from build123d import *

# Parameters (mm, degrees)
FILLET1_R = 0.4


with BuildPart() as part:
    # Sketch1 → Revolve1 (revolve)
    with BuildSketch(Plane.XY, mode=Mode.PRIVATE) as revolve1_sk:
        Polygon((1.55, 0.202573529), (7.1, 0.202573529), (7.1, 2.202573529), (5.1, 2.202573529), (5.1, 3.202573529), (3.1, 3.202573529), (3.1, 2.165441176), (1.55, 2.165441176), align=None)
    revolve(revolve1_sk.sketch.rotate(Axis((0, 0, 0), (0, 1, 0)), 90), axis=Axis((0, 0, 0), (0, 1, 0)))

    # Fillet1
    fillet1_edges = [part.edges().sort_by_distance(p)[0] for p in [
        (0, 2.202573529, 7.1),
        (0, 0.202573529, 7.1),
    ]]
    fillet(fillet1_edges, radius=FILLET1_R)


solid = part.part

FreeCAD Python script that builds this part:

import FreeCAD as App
import Part
import Sketcher

V = App.Vector
Q = App.Units.Quantity


def edges_at(feature, points):
    """Names of the edges that pass closest to the given points."""
    edges = feature.Shape.Edges
    near = lambda p: min(range(len(edges)), key=lambda i: edges[i].distToShape(Part.Vertex(*p))[0])
    return sorted({f"Edge{near(p) + 1}" for p in points})


def add_polygon(sketch, points):
    """Adds a closed chain of lines whose ends are joined by coincident constraints."""
    first, n = sketch.GeometryCount, len(points)
    for a, b in zip(points, points[1:] + points[:1]):
        sketch.addGeometry(Part.LineSegment(App.Vector(*a, 0), App.Vector(*b, 0)), False)
    for i in range(n):
        sketch.addConstraint(Sketcher.Constraint("Coincident", first + i, 2, first + (i + 1) % n, 1))

doc = App.newDocument("Part")
body = doc.addObject("PartDesign::Body", "Body")

# Sketch on XY plane
sketch1 = body.newObject("Sketcher::SketchObject", "Sketch")
sketch1.AttachmentSupport = (doc.getObject("XY_Plane"), [""])
sketch1.MapMode = "FlatFace"
add_polygon(sketch1, [(1.6, 0.2), (7.1, 0.2), (7.1, 2.2), (5.1, 2.2), (5.1, 3.2), (3.1, 3.2), (3.1, 2.2), (1.6, 2.2)])  # lines 0-7
sketch1.addConstraint(Sketcher.Constraint("Horizontal", 0))
sketch1.addConstraint(Sketcher.Constraint("Vertical", 1))
sketch1.addConstraint(Sketcher.Constraint("Horizontal", 2))
sketch1.addConstraint(Sketcher.Constraint("Vertical", 3))
sketch1.addConstraint(Sketcher.Constraint("Horizontal", 4))
sketch1.addConstraint(Sketcher.Constraint("Vertical", 5))
sketch1.addConstraint(Sketcher.Constraint("Horizontal", 6))
sketch1.addConstraint(Sketcher.Constraint("Vertical", 7))
sketch1.addConstraint(Sketcher.Constraint("Equal", 2, 4))
sketch1.addConstraint(Sketcher.Constraint("Equal", 4, 1))
sketch1.addConstraint(Sketcher.Constraint("DistanceX", 2, 2, 2, 1, Q("2 mm")))
sketch1.addConstraint(Sketcher.Constraint("DistanceY", 3, 1, 3, 2, Q("1 mm")))
sketch1.addConstraint(Sketcher.Constraint("DistanceX", 0, 1, 0, 2, Q("5.55 mm")))
sketch1.addConstraint(Sketcher.Constraint("DistanceX", -1, 1, 0, 2, Q("7.1 mm")))
sketch1.addConstraint(Sketcher.Constraint("DistanceY", 5, 2, 5, 1, Q("1.037132 mm")))
sketch1.addConstraint(Sketcher.Constraint("DistanceY", -1, 1, 5, 2, Q("2.165441 mm")))
revolution = body.newObject("PartDesign::Revolution", "Revolution")
revolution.Profile = sketch1
revolution.ReferenceAxis = (sketch1, ["V_Axis"])
revolution.Angle = 360
doc.recompute()

fillet = body.newObject("PartDesign::Fillet", "Fillet")
fillet.Base = (revolution, edges_at(revolution, [(0, 2.203, 7.1), (0, 0.203, 7.1)]))
fillet.Radius = 0.4

doc.recompute()
